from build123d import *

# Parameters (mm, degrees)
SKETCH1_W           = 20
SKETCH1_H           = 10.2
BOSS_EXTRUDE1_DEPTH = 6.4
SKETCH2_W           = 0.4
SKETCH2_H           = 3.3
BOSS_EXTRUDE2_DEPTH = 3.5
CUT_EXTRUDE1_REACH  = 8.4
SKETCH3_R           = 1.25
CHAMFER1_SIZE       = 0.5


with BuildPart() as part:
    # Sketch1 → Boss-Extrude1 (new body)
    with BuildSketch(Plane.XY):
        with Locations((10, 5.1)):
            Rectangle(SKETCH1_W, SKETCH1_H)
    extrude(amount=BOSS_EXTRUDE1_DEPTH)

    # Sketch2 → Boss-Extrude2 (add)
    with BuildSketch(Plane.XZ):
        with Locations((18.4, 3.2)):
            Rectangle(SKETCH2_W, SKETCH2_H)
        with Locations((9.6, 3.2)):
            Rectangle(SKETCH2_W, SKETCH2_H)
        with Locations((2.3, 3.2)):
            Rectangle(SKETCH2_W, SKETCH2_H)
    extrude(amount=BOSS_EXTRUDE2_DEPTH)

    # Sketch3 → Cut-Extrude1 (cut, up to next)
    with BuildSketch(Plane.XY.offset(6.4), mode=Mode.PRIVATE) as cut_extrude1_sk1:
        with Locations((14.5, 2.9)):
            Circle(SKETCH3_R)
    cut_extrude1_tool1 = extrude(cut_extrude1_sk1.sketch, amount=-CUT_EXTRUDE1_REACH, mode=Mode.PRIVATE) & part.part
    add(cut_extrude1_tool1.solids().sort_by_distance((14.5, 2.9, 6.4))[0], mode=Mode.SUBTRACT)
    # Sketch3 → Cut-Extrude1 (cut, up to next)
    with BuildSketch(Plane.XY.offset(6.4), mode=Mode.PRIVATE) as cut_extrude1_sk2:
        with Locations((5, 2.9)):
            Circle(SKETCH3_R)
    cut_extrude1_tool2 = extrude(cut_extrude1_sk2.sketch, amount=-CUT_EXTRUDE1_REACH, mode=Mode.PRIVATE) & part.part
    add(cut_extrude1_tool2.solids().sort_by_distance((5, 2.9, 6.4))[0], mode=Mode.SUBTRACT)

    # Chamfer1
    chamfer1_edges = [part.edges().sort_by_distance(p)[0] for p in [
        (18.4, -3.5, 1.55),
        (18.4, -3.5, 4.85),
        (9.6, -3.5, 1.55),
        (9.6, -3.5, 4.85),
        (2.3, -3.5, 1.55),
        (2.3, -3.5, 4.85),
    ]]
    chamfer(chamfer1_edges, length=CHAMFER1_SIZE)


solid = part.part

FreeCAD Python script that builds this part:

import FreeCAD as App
import Part
import Sketcher
from FreeCAD import Vector


def edges_at(feature, points):
    """Names of the edges that pass closest to the given points."""
    edges = feature.Shape.Edges
    near = lambda p: min(range(len(edges)), key=lambda i: edges[i].distToShape(Part.Vertex(*p))[0])
    return sorted({f"Edge{near(p) + 1}" for p in points})

doc = App.newDocument("Part")
params = doc.addObject("Spreadsheet::Sheet", "Params")
for row, (alias, value) in enumerate([
    ("sketch1_width", "20 mm"),
    ("sketch1_height", "10.2 mm"),
    ("pad1_length", "6.4 mm"),
    ("sketch2_width", "0.4 mm"),
    ("sketch2_height", "3.3 mm"),
    ("pad2_length", "3.5 mm"),
    ("sketch3_diameter", "2.5 mm"),
    ("sketch4_diameter", "2.5 mm"),
    ("chamfer_size", "0.5 mm"),
], start=1):
    params.set(f"A{row}", alias)
    params.set(f"B{row}", "=" + value)
    params.setAlias(f"B{row}", alias)

body = doc.addObject("PartDesign::Body", "Body")

sketch1 = doc.addObject("Sketcher::SketchObject", "Sketch")
body.addObject(sketch1)
sketch1.AttachmentSupport = (doc.XY_Plane, [""])
sketch1.MapMode = "FlatFace"
sketch1.addGeometry([
    Part.LineSegment(Vector(0, 10, 0), Vector(0, 0, 0)),
    Part.LineSegment(Vector(0, 0, 0), Vector(20, 0, 0)),
    Part.LineSegment(Vector(20, 0, 0), Vector(20, 10, 0)),
    Part.LineSegment(Vector(20, 10, 0), Vector(0, 10, 0)),
], False)
sketch1.addConstraint([
    Sketcher.Constraint("Coincident", 0, 2, 1, 1),
    Sketcher.Constraint("Coincident", 1, 2, 2, 1),
    Sketcher.Constraint("Coincident", 2, 2, 3, 1),
    Sketcher.Constraint("Coincident", 3, 2, 0, 1),
    Sketcher.Constraint("Vertical", 0),
    Sketcher.Constraint("Horizontal", 1),
    Sketcher.Constraint("Vertical", 2),
    Sketcher.Constraint("Horizontal", 3),
    Sketcher.Constraint("Coincident", 0, 2, -1, 1),
    Sketcher.Constraint("DistanceX", 1, 1, 1, 2, 20.0),
    Sketcher.Constraint("DistanceY", 0, 2, 0, 1, 10.2),
])
sketch1.setExpression("Constraints[9]", "Params.sketch1_width")
sketch1.setExpression("Constraints[10]", "Params.sketch1_height")
pad1 = doc.addObject("PartDesign::Pad", "Pad")
body.addObject(pad1)
pad1.Profile = sketch1
pad1.setExpression("Length", "Params.pad1_length")

sketch2 = doc.addObject("Sketcher::SketchObject", "Sketch001")
body.addObject(sketch2)
sketch2.AttachmentSupport = (doc.XZ_Plane, [""])
sketch2.MapMode = "FlatFace"
sketch2.addGeometry([
    Part.LineSegment(Vector(18.2, 4.85, 0), Vector(18.2, 1.55, 0)),
    Part.LineSegment(Vector(18.2, 1.55, 0), Vector(18.6, 1.55, 0)),
    Part.LineSegment(Vector(18.6, 1.55, 0), Vector(18.6, 4.85, 0)),
    Part.LineSegment(Vector(18.6, 4.85, 0), Vector(18.2, 4.85, 0)),
    Part.LineSegment(Vector(9.4, 4.85, 0), Vector(9.4, 1.55, 0)),
    Part.LineSegment(Vector(9.4, 1.55, 0), Vector(9.8, 1.55, 0)),
    Part.LineSegment(Vector(9.8, 1.55, 0), Vector(9.8, 4.85, 0)),
    Part.LineSegment(Vector(9.8, 4.85, 0), Vector(9.4, 4.85, 0)),
    Part.LineSegment(Vector(2.1, 4.85, 0), Vector(2.1, 1.55, 0)),
    Part.LineSegment(Vector(2.1, 1.55, 0), Vector(2.5, 1.55, 0)),
    Part.LineSegment(Vector(2.5, 1.55, 0), Vector(2.5, 4.85, 0)),
    Part.LineSegment(Vector(2.5, 4.85, 0), Vector(2.1, 4.85, 0)),
], False)
sketch2.addConstraint([
    Sketcher.Constraint("Coincident", 0, 2, 1, 1),
    Sketcher.Constraint("Coincident", 1, 2, 2, 1),
    Sketcher.Constraint("Coincident", 2, 2, 3, 1),
    Sketcher.Constraint("Coincident", 3, 2, 0, 1),
    Sketcher.Constraint("Coincident", 4, 2, 5, 1),
    Sketcher.Constraint("Coincident", 5, 2, 6, 1),
    Sketcher.Constraint("Coincident", 6, 2, 7, 1),
    Sketcher.Constraint("Coincident", 7, 2, 4, 1),
    Sketcher.Constraint("Coincident", 8, 2, 9, 1),
    Sketcher.Constraint("Coincident", 9, 2, 10, 1),
    Sketcher.Constraint("Coincident", 10, 2, 11, 1),
    Sketcher.Constraint("Coincident", 11, 2, 8, 1),
    Sketcher.Constraint("Vertical", 0),
    Sketcher.Constraint("Horizontal", 1),
    Sketcher.Constraint("Vertical", 2),
    Sketcher.Constraint("Horizontal", 3),
    Sketcher.Constraint("Vertical", 4),
    Sketcher.Constraint("Horizontal", 5),
    Sketcher.Constraint("Vertical", 6),
    Sketcher.Constraint("Horizontal", 7),
    Sketcher.Constraint("Vertical", 8),
    Sketcher.Constraint("Horizontal", 9),
    Sketcher.Constraint("Vertical", 10),
    Sketcher.Constraint("Horizontal", 11),
    Sketcher.Constraint("Horizontal", 1, 2, 4, 2),
    Sketcher.Constraint("Horizontal", 3, 2, 6, 2),
    Sketcher.Constraint("Horizontal", 5, 2, 8, 2),
    Sketcher.Constraint("Horizontal", 7, 2, 10, 2),
    Sketcher.Constraint("Equal", 3, 5),
    Sketcher.Constraint("Equal", 7, 9),
    Sketcher.Constraint("DistanceX", 1, 1, 1, 2, 0.4),
    Sketcher.Constraint("DistanceY", 0, 2, 0, 1, 3.3),
    Sketcher.Constraint("DistanceX", -1, 1, 0, 2, 18.2),
    Sketcher.Constraint("DistanceX", -1, 1, 4, 2, 9.4),
    Sketcher.Constraint("DistanceX", -1, 1, 8, 2, 2.1),
    Sketcher.Constraint("DistanceY", -1, 1, 0, 2, 1.55),
])
sketch2.setExpression("Constraints[30]", "Params.sketch2_width")
sketch2.setExpression("Constraints[31]", "Params.sketch2_height")
pad2 = doc.addObject("PartDesign::Pad", "Pad001")
body.addObject(pad2)
pad2.Profile = sketch2
pad2.setExpression("Length", "Params.pad2_length")

sketch3 = doc.addObject("Sketcher::SketchObject", "Sketch002")
body.addObject(sketch3)
sketch3.AttachmentSupport = (doc.XY_Plane, [""])
sketch3.MapMode = "FlatFace"
sketch3.AttachmentOffset = App.Placement(Vector(0, 0, 6.4), App.Rotation())
sketch3.addGeometry(Part.Circle(Vector(14.5, 2.9, 0), Vector(0, 0, 1), 1.2), False)
sketch3.addConstraint([
    Sketcher.Constraint("Diameter", 0, 2.5),
    Sketcher.Constraint("DistanceX", -1, 1, 0, 3, 14.5),
    Sketcher.Constraint("DistanceY", -1, 1, 0, 3, 2.9),
])
sketch3.setExpression("Constraints[0]", "Params.sketch3_diameter")
pocket1 = doc.addObject("PartDesign::Pocket", "Pocket")
body.addObject(pocket1)
pocket1.Profile = sketch3
pocket1.Type = "UpToFirst"

sketch4 = doc.addObject("Sketcher::SketchObject", "Sketch003")
body.addObject(sketch4)
sketch4.AttachmentSupport = (doc.XY_Plane, [""])
sketch4.MapMode = "FlatFace"
sketch4.AttachmentOffset = App.Placement(Vector(0, 0, 6.4), App.Rotation())
sketch4.addGeometry(Part.Circle(Vector(5, 2.9, 0), Vector(0, 0, 1), 1.2), False)
sketch4.addConstraint([
    Sketcher.Constraint("Diameter", 0, 2.5),
    Sketcher.Constraint("DistanceX", -1, 1, 0, 3, 5.0),
    Sketcher.Constraint("DistanceY", -1, 1, 0, 3, 2.9),
])
sketch4.setExpression("Constraints[0]", "Params.sketch4_diameter")
pocket2 = doc.addObject("PartDesign::Pocket", "Pocket001")
body.addObject(pocket2)
pocket2.Profile = sketch4
pocket2.Type = "UpToFirst"
doc.recompute()

chamfer = doc.addObject("PartDesign::Chamfer", "Chamfer")
body.addObject(chamfer)
chamfer.Base = (pocket2, edges_at(pocket2, [
    (18.4, -3.5, 1.55),
    (18.4, -3.5, 4.85),
    (9.6, -3.5, 1.55),
    (9.6, -3.5, 4.85),
    (2.3, -3.5, 1.55),
    (2.3, -3.5, 4.85),
]))
chamfer.setExpression("Size", "Params.chamfer_size")

doc.recompute()
